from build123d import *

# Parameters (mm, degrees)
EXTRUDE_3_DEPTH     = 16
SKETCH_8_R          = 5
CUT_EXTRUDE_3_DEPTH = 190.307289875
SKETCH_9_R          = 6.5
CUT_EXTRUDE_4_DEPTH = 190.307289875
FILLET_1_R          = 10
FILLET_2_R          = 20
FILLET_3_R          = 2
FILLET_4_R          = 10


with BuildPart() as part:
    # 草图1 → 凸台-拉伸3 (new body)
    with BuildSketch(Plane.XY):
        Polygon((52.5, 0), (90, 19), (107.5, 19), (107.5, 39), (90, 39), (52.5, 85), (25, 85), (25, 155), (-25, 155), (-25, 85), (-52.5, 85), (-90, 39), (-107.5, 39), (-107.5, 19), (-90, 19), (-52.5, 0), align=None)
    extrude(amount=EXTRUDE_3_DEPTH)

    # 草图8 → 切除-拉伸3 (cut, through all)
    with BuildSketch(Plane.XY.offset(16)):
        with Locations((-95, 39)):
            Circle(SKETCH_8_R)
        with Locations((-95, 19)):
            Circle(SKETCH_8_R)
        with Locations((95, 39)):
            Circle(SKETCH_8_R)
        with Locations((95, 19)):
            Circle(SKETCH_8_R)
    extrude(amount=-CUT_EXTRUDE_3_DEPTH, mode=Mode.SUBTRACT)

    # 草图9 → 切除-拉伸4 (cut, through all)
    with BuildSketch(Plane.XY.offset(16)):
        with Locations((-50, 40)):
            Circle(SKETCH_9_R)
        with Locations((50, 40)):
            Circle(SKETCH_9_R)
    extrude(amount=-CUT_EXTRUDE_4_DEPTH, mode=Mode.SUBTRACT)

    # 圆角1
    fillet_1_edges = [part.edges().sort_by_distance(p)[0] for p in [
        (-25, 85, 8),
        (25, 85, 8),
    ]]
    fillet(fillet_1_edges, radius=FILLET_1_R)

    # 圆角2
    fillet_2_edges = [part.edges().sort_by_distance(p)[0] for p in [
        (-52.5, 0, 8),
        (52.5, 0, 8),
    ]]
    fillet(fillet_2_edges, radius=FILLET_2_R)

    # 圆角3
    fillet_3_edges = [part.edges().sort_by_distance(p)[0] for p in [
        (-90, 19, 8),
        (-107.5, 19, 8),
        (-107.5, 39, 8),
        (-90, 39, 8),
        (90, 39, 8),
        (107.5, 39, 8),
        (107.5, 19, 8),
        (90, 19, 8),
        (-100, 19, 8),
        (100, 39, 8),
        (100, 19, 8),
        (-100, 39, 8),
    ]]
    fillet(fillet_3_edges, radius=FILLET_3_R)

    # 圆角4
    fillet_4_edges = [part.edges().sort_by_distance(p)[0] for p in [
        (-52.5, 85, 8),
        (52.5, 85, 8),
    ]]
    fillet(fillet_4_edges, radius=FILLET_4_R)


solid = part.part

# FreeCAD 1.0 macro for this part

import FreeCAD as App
import Part
import Sketcher


def edges_at(feature, points):
    """Names of the edges that pass closest to the given points."""
    edges = feature.Shape.Edges
    near = lambda p: min(range(len(edges)), key=lambda i: edges[i].distToShape(Part.Vertex(*p))[0])
    return sorted({f"Edge{near(p) + 1}" for p in points})

doc = App.newDocument("Part")
body = doc.addObject("PartDesign::Body", "Body")

# Sketch on XY plane
sketch1 = body.newObject("Sketcher::SketchObject", "Sketch")
sketch1.AttachmentSupport = (doc.getObject("XY_Plane"), [""])
sketch1.MapMode = "FlatFace"
sketch1.addGeometry([
    Part.LineSegment(App.Vector(52, 0, 0), App.Vector(90, 19, 0)),  # 0
    Part.LineSegment(App.Vector(90, 19, 0), App.Vector(108, 19, 0)),  # 1
    Part.LineSegment(App.Vector(108, 19, 0), App.Vector(108, 39, 0)),  # 2
    Part.LineSegment(App.Vector(108, 39, 0), App.Vector(90, 39, 0)),  # 3
    Part.LineSegment(App.Vector(90, 39, 0), App.Vector(52, 85, 0)),  # 4
    Part.LineSegment(App.Vector(52, 85, 0), App.Vector(25, 85, 0)),  # 5
    Part.LineSegment(App.Vector(25, 85, 0), App.Vector(25, 155, 0)),  # 6
    Part.LineSegment(App.Vector(25, 155, 0), App.Vector(-25, 155, 0)),  # 7
    Part.LineSegment(App.Vector(-25, 155, 0), App.Vector(-25, 85, 0)),  # 8
    Part.LineSegment(App.Vector(-25, 85, 0), App.Vector(-52, 85, 0)),  # 9
    Part.LineSegment(App.Vector(-52, 85, 0), App.Vector(-90, 39, 0)),  # 10
    Part.LineSegment(App.Vector(-90, 39, 0), App.Vector(-108, 39, 0)),  # 11
    Part.LineSegment(App.Vector(-108, 39, 0), App.Vector(-108, 19, 0)),  # 12
    Part.LineSegment(App.Vector(-108, 19, 0), App.Vector(-90, 19, 0)),  # 13
    Part.LineSegment(App.Vector(-90, 19, 0), App.Vector(-52, 0, 0)),  # 14
    Part.LineSegment(App.Vector(-52, 0, 0), App.Vector(52, 0, 0)),  # 15
], False)
sketch1.addConstraint([
    Sketcher.Constraint("Coincident", 0, 2, 1, 1),
    Sketcher.Constraint("Coincident", 1, 2, 2, 1),
    Sketcher.Constraint("Coincident", 2, 2, 3, 1),
    Sketcher.Constraint("Coincident", 3, 2, 4, 1),
    Sketcher.Constraint("Coincident", 4, 2, 5, 1),
    Sketcher.Constraint("Coincident", 5, 2, 6, 1),
    Sketcher.Constraint("Coincident", 6, 2, 7, 1),
    Sketcher.Constraint("Coincident", 7, 2, 8, 1),
    Sketcher.Constraint("Coincident", 8, 2, 9, 1),
    Sketcher.Constraint("Coincident", 9, 2, 10, 1),
    Sketcher.Constraint("Coincident", 10, 2, 11, 1),
    Sketcher.Constraint("Coincident", 11, 2, 12, 1),
    Sketcher.Constraint("Coincident", 12, 2, 13, 1),
    Sketcher.Constraint("Coincident", 13, 2, 14, 1),
    Sketcher.Constraint("Coincident", 14, 2, 15, 1),
    Sketcher.Constraint("Coincident", 15, 2, 0, 1),
    Sketcher.Constraint("Horizontal", 1),
    Sketcher.Constraint("Vertical", 2),
    Sketcher.Constraint("Horizontal", 3),
    Sketcher.Constraint("Horizontal", 5),
    Sketcher.Constraint("Vertical", 6),
    Sketcher.Constraint("Horizontal", 7),
    Sketcher.Constraint("Vertical", 8),
    Sketcher.Constraint("Horizontal", 9),
    Sketcher.Constraint("Horizontal", 11),
    Sketcher.Constraint("Vertical", 12),
    Sketcher.Constraint("Horizontal", 13),
    Sketcher.Constraint("Horizontal", 15),
    Sketcher.Constraint("Symmetric", 14, 2, 15, 2, -1, 1),
    Sketcher.Constraint("Symmetric", 5, 2, 8, 2, -2),
    Sketcher.Constraint("Symmetric", 3, 2, 10, 2, -2),
    Sketcher.Constraint("Symmetric", 1, 2, 12, 2, -2),
    Sketcher.Constraint("Vertical", 0, 2, 3, 2),
    Sketcher.Constraint("Vertical", 10, 2, 13, 2),
    Sketcher.Constraint("Vertical", 9, 2, 14, 2),
    Sketcher.Constraint("Vertical", 4, 2, 15, 2),
    Sketcher.Constraint("DistanceX", 7, 2, 7, 1, 50.0),
    Sketcher.Constraint("DistanceX", 15, 1, 15, 2, 105.0),
    Sketcher.Constraint("DistanceY", 2, 1, 2, 2, 20.0),
    Sketcher.Constraint("DistanceY", 6, 1, 6, 2, 70.0),
    Sketcher.Constraint("DistanceX", 1, 1, 1, 2, 17.5),
    Sketcher.Constraint("DistanceX", -1, 1, 0, 2, 90.0),
    Sketcher.Constraint("DistanceY", -1, 1, 0, 2, 19.0),
    Sketcher.Constraint("DistanceY", -1, 1, 4, 2, 85.0),
])
pad1 = body.newObject("PartDesign::Pad", "Pad")
pad1.Profile = sketch1
pad1.Length = 16

# Sketch on XY plane
sketch2 = body.newObject("Sketcher::SketchObject", "Sketch001")
sketch2.AttachmentSupport = (doc.getObject("XY_Plane"), [""])
sketch2.MapMode = "FlatFace"
sketch2.AttachmentOffset = App.Placement(App.Vector(0, 0, 16), App.Rotation())
sketch2.addGeometry([
    Part.Circle(App.Vector(-95, 39, 0), App.Vector(0, 0, 1), 5),
    Part.Circle(App.Vector(-95, 19, 0), App.Vector(0, 0, 1), 5),
    Part.Circle(App.Vector(95, 39, 0), App.Vector(0, 0, 1), 5),
    Part.Circle(App.Vector(95, 19, 0), App.Vector(0, 0, 1), 5),
], False)
sketch2.addConstraint([
    Sketcher.Constraint("Equal", 0, 1),
    Sketcher.Constraint("Equal", 1, 2),
    Sketcher.Constraint("Equal", 2, 3),
    Sketcher.Constraint("Symmetric", 0, 3, 2, 3, -2),
    Sketcher.Constraint("Symmetric", 1, 3, 3, 3, -2),
    Sketcher.Constraint("Vertical", 0, 3, 1, 3),
    Sketcher.Constraint("Diameter", 0, 10.0),
    Sketcher.Constraint("DistanceX", 0, 3, -1, 1, 95.0),
    Sketcher.Constraint("DistanceY", -1, 1, 0, 3, 39.0),
    Sketcher.Constraint("DistanceY", -1, 1, 1, 3, 19.0),
])
pocket1 = body.newObject("PartDesign::Pocket", "Pocket")
pocket1.Profile = sketch2
pocket1.Type = "ThroughAll"

# Sketch on XY plane
sketch3 = body.newObject("Sketcher::SketchObject", "Sketch002")
sketch3.AttachmentSupport = (doc.getObject("XY_Plane"), [""])
sketch3.MapMode = "FlatFace"
sketch3.AttachmentOffset = App.Placement(App.Vector(0, 0, 16), App.Rotation())
sketch3.addGeometry([
    Part.Circle(App.Vector(-50, 40, 0), App.Vector(0, 0, 1), 6),
    Part.Circle(App.Vector(50, 40, 0), App.Vector(0, 0, 1), 6),
], False)
sketch3.addConstraint([
    Sketcher.Constraint("Equal", 0, 1),
    Sketcher.Constraint("Symmetric", 0, 3, 1, 3, -2),
    Sketcher.Constraint("Diameter", 0, 13.0),
    Sketcher.Constraint("DistanceX", 0, 3, -1, 1, 50.0),
    Sketcher.Constraint("DistanceY", -1, 1, 0, 3, 40.0),
])
pocket2 = body.newObject("PartDesign::Pocket", "Pocket001")
pocket2.Profile = sketch3
pocket2.Type = "ThroughAll"
doc.recompute()

fillet = body.newObject("PartDesign::Fillet", "Fillet")
fillet.Base = (pocket2, edges_at(pocket2, [(-25, 85, 8), (25, 85, 8)]))
fillet.Radius = 10
doc.recompute()

fillet2 = body.newObject("PartDesign::Fillet", "Fillet001")
fillet2.Base = (fillet, edges_at(fillet, [(-52.5, 0, 8), (52.5, 0, 8)]))
fillet2.Radius = 20
doc.recompute()

fillet3 = body.newObject("PartDesign::Fillet", "Fillet002")
fillet3.Base = (fillet2, edges_at(fillet2, [
    (-90, 19, 8),
    (-107.5, 19, 8),
    (-107.5, 39, 8),
    (-90, 39, 8),
    (90, 39, 8),
    (107.5, 39, 8),
    (107.5, 19, 8),
    (90, 19, 8),
    (-100, 19, 8),
    (100, 39, 8),
    (100, 19, 8),
    (-100, 39, 8),
]))
fillet3.Radius = 2
doc.recompute()

fillet4 = body.newObject("PartDesign::Fillet", "Fillet003")
fillet4.Base = (fillet3, edges_at(fillet3, [(-52.5, 85, 8), (52.5, 85, 8)]))
fillet4.Radius = 10

doc.recompute()
